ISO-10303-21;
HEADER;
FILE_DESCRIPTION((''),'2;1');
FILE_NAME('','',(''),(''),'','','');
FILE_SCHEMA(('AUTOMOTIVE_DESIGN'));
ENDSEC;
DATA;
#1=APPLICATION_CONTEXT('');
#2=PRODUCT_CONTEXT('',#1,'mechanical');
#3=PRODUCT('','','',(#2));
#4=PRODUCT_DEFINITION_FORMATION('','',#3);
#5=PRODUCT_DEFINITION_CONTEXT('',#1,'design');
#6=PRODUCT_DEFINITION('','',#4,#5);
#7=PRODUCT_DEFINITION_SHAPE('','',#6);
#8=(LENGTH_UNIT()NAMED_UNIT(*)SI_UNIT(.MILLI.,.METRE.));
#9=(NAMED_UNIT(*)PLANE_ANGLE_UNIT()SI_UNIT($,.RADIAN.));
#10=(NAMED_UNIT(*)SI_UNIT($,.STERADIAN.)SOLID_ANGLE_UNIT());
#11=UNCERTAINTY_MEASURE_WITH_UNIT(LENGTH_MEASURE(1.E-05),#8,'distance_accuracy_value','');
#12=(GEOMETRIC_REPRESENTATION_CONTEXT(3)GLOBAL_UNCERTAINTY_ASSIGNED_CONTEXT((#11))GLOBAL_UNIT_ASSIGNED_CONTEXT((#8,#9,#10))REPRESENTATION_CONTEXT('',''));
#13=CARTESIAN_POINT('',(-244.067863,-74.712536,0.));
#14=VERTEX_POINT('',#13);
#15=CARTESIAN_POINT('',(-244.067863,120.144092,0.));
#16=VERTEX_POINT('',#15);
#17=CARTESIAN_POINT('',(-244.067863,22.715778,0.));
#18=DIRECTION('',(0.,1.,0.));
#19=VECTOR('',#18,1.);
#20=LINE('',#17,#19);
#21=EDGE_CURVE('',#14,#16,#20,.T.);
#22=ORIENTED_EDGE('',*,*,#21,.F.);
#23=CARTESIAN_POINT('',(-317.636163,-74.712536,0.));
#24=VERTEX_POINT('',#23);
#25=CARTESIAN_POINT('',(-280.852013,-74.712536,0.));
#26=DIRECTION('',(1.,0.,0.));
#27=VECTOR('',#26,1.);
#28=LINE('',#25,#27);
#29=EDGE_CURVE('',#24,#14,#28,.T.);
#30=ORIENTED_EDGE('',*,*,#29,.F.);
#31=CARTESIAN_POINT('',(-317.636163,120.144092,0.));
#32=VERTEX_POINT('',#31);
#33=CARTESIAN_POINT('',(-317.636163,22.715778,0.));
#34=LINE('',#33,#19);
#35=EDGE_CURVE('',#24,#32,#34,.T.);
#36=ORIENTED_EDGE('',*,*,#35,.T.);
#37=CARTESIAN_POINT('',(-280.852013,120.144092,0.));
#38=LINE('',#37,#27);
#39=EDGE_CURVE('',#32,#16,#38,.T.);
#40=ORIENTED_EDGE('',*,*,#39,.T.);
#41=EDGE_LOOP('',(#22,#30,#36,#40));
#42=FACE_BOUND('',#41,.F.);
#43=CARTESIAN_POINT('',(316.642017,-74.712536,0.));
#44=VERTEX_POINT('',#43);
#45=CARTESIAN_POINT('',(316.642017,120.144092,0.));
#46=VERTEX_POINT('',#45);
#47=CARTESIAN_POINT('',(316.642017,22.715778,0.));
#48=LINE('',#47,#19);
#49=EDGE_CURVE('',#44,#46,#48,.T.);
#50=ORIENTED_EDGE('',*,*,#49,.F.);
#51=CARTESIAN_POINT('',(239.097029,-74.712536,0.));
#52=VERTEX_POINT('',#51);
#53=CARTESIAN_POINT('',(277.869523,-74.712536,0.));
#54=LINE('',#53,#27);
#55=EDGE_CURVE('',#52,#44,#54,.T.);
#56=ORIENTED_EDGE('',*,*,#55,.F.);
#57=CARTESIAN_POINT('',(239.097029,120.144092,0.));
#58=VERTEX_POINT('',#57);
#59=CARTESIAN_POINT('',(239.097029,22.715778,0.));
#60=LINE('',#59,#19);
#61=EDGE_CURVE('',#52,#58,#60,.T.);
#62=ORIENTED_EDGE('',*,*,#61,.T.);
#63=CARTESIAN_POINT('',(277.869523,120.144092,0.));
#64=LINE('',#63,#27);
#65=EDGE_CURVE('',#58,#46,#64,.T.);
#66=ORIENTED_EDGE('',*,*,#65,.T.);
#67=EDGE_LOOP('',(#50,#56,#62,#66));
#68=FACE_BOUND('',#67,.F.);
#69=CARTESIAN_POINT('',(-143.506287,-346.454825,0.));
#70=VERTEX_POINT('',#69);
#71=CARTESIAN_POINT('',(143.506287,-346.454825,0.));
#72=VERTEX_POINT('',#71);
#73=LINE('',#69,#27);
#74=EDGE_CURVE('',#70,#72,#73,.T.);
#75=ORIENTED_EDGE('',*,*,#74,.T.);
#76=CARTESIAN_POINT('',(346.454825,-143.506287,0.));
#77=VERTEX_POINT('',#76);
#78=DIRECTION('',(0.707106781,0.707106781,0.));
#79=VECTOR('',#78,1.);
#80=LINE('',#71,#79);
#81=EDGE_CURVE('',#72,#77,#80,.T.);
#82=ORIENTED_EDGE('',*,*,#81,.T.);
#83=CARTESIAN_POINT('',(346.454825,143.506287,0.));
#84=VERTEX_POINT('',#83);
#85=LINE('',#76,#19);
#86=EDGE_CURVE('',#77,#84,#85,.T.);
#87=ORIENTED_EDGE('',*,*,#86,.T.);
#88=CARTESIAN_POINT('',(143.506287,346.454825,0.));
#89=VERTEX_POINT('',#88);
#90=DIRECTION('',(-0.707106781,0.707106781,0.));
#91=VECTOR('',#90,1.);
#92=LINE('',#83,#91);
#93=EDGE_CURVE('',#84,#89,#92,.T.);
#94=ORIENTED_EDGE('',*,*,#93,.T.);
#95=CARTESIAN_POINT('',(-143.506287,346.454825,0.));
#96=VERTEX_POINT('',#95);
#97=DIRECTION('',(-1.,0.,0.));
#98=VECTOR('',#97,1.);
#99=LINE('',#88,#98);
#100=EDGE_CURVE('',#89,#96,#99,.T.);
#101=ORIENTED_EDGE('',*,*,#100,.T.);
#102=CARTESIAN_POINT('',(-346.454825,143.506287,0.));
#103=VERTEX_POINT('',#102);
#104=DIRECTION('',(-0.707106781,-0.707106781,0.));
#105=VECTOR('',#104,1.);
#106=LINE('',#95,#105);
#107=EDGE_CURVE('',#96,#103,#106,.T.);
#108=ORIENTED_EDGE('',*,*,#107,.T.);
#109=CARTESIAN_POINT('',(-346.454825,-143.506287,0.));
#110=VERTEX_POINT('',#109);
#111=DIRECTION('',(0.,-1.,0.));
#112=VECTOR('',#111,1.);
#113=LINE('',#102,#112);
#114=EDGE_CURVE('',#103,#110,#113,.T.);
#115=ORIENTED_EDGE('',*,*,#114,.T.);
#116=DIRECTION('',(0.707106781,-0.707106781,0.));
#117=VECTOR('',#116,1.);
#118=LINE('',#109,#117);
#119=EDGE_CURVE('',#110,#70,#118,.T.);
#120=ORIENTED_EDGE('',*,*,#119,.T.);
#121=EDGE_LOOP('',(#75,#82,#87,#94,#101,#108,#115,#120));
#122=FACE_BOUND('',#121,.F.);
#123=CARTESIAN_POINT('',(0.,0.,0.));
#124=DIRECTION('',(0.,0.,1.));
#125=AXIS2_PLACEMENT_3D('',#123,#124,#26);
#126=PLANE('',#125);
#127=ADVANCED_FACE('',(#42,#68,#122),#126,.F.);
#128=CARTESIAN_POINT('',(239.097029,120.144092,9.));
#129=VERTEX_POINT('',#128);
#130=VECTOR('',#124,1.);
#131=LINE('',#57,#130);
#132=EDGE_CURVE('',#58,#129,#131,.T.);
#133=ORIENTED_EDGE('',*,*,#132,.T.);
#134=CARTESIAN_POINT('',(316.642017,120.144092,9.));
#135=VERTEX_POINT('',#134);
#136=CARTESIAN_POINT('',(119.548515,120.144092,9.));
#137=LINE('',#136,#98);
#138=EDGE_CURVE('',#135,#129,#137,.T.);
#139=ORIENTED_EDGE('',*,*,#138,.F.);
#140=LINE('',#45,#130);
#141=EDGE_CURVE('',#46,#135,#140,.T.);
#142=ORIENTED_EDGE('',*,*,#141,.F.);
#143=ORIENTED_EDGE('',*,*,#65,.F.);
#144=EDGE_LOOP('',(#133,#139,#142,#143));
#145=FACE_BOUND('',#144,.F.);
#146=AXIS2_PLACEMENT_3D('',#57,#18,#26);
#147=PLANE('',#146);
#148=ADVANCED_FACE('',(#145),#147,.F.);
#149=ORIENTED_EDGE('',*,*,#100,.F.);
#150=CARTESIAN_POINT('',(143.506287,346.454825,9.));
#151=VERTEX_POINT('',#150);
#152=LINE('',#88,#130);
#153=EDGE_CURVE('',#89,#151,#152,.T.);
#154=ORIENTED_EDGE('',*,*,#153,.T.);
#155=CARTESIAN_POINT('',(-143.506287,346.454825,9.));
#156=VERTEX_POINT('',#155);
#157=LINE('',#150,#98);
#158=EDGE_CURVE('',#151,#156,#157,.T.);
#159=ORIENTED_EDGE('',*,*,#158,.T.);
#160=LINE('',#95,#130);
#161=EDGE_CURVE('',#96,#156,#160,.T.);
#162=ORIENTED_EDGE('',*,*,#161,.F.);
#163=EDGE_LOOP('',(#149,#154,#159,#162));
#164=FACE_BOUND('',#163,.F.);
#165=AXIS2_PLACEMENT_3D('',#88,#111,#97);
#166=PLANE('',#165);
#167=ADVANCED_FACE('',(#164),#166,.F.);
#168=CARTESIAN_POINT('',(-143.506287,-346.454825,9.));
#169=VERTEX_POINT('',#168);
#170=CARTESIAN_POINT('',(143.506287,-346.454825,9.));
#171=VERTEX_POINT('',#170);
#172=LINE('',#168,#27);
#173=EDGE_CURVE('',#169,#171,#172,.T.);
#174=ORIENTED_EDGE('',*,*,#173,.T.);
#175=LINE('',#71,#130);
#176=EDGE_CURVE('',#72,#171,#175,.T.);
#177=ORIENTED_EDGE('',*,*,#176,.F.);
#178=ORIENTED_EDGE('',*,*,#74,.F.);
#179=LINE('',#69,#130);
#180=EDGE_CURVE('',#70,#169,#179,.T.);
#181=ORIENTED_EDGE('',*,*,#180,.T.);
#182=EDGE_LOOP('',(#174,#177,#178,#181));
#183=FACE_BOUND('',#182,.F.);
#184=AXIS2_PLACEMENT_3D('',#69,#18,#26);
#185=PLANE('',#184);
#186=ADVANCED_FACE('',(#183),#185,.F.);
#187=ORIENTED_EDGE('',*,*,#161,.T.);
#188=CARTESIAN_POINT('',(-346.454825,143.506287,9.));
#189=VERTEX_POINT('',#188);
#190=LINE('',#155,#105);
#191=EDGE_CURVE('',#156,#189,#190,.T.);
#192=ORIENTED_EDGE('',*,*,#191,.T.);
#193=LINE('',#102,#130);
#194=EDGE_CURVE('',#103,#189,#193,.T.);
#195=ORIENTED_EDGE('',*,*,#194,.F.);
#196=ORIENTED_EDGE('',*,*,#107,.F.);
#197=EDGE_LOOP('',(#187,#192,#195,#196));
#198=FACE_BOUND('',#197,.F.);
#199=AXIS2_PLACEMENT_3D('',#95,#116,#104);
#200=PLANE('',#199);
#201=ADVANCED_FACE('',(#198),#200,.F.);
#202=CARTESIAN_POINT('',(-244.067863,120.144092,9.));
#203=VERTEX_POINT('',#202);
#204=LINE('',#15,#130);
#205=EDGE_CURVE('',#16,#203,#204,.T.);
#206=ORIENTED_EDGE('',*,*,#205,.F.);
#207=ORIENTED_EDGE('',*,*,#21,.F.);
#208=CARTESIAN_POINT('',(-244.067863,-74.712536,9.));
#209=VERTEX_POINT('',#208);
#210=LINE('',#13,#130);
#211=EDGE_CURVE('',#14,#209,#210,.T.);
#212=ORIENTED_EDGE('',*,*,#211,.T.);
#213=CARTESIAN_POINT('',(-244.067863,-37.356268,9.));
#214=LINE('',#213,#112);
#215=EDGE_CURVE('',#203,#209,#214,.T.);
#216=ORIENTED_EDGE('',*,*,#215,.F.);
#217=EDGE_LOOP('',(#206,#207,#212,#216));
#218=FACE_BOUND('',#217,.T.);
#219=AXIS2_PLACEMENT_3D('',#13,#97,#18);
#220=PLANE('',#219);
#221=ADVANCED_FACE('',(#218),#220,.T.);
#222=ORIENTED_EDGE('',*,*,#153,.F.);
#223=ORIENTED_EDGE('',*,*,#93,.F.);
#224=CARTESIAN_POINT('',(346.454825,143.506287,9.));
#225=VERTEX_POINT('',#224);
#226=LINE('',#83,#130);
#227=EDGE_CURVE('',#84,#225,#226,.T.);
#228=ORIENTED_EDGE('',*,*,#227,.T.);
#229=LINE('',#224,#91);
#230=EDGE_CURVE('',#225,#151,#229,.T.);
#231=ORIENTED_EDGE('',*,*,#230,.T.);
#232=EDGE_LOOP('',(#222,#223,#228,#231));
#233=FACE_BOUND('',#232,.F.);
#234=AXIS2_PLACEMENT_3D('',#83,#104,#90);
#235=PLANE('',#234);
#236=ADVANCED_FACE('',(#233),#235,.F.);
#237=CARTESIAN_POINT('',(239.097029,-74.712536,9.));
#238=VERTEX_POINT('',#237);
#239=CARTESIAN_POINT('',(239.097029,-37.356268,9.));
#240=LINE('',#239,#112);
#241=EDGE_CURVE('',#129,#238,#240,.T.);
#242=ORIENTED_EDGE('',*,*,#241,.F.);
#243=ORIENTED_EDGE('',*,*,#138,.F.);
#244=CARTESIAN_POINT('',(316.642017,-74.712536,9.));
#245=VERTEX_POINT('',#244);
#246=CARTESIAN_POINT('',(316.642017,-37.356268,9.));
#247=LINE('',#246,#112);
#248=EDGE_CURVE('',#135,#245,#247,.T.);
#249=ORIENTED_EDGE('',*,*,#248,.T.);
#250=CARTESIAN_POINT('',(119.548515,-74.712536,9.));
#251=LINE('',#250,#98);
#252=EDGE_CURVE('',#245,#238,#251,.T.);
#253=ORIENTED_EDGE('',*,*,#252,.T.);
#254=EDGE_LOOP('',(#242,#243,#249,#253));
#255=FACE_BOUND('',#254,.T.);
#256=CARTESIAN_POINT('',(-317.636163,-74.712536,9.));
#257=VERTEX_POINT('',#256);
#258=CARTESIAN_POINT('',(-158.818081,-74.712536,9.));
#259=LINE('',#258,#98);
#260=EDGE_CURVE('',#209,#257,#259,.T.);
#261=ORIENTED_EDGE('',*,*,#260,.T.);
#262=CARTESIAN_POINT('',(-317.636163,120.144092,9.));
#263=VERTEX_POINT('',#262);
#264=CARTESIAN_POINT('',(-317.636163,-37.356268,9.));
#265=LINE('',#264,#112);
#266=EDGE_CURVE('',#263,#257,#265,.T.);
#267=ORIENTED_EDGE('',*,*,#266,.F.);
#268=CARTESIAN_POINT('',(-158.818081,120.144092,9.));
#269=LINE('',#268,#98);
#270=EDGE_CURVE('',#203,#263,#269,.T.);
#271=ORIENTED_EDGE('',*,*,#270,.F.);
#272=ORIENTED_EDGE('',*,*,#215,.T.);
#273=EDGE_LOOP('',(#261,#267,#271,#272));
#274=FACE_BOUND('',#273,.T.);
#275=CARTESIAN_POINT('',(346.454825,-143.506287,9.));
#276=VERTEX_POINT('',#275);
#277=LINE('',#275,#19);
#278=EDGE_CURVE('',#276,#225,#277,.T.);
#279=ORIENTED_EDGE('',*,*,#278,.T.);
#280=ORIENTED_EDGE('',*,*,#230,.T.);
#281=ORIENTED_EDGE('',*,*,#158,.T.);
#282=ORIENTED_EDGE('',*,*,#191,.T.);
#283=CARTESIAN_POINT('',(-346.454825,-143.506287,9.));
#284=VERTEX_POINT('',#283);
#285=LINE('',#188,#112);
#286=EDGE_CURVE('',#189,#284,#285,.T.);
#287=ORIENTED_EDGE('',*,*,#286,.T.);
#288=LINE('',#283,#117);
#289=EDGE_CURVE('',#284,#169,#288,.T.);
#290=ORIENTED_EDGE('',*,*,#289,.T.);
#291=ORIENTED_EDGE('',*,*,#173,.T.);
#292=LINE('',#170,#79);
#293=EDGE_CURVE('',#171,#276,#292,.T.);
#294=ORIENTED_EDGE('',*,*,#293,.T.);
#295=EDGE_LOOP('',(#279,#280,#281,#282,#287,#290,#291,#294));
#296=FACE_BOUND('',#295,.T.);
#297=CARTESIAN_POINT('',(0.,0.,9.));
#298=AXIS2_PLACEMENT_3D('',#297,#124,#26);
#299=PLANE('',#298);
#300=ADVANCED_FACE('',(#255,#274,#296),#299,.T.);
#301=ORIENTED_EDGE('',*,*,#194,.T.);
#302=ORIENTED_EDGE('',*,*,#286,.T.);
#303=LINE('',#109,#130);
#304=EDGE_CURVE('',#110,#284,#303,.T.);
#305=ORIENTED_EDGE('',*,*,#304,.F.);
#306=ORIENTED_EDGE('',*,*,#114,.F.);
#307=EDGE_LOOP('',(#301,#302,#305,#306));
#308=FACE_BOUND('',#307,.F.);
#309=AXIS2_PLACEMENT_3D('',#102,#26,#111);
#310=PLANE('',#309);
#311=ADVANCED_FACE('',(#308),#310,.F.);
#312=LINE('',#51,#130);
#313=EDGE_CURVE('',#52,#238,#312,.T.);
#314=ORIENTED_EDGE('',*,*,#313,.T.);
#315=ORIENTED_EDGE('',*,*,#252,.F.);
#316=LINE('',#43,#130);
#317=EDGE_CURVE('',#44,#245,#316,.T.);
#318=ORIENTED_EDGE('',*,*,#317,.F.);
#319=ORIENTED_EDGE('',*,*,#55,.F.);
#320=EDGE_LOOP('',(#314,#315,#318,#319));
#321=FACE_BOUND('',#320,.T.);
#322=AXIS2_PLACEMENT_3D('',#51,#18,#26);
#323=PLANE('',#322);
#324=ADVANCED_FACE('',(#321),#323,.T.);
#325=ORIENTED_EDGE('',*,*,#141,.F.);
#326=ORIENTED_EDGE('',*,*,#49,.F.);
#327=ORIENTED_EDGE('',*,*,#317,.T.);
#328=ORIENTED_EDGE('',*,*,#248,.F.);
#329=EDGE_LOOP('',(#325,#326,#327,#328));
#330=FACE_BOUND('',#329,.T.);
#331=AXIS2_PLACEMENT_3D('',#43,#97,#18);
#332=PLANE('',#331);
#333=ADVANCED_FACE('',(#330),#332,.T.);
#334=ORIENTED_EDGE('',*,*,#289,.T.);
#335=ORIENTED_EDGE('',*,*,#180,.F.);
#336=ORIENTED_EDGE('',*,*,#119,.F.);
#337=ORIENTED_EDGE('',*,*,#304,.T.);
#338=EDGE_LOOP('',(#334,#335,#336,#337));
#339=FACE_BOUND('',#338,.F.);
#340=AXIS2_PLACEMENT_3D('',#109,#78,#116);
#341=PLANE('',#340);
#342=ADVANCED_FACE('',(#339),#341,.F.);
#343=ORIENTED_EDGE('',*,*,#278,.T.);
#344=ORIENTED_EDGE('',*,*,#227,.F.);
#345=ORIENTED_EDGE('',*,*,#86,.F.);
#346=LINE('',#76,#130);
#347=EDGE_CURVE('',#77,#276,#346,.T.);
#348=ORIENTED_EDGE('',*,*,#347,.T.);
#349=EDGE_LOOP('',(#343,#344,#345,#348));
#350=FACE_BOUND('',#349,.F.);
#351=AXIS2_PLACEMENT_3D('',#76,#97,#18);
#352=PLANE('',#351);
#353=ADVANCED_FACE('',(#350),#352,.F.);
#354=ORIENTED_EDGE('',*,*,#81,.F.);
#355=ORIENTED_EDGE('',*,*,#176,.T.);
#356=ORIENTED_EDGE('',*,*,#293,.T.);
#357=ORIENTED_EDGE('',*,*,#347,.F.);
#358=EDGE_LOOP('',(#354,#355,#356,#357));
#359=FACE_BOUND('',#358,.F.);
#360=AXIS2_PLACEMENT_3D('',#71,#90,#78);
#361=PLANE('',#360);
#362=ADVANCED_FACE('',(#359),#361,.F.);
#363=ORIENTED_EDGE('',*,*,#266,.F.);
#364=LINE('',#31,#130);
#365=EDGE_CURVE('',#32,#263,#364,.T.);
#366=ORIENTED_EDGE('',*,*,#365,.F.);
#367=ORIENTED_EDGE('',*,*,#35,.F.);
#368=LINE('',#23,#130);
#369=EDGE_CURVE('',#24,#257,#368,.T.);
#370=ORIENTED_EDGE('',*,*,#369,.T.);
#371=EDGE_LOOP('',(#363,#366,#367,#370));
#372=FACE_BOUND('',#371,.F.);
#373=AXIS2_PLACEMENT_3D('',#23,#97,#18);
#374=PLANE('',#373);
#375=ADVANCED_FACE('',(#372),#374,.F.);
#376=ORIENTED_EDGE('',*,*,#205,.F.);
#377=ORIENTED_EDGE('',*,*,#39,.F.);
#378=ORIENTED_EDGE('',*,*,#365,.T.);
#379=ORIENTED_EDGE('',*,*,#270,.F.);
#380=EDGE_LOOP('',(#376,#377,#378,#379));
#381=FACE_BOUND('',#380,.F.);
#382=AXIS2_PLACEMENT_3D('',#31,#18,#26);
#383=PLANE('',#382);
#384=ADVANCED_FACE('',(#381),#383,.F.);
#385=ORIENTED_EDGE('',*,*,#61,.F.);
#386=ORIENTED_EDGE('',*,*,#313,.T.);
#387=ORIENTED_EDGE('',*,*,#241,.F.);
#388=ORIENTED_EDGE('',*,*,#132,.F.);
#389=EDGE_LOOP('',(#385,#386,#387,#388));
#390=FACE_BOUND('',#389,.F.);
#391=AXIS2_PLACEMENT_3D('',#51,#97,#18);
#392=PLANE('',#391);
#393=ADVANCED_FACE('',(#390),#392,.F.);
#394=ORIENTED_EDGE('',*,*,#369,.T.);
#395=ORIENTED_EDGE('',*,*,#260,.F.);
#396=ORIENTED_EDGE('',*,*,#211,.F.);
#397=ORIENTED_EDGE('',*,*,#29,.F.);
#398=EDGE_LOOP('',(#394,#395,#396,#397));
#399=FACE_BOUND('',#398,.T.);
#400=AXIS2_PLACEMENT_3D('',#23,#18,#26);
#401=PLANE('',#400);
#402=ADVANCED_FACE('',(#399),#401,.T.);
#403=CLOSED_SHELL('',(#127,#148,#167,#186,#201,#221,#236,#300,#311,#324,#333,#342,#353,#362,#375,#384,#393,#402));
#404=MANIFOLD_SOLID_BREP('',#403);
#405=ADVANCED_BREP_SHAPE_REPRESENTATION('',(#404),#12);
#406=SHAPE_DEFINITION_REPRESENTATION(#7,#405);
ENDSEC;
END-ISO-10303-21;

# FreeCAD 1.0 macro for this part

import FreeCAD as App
import Part
import Sketcher

doc = App.newDocument("Part")
body = doc.addObject("PartDesign::Body", "Body")

# Sketch on XY plane
sketch1 = body.newObject("Sketcher::SketchObject", "Sketch")
sketch1.AttachmentSupport = (doc.getObject("XY_Plane"), [""])
sketch1.MapMode = "FlatFace"
sketch1.addGeometry([
    Part.LineSegment(App.Vector(144, 346, 0), App.Vector(-144, 346, 0)),  # 0
    Part.LineSegment(App.Vector(-144, 346, 0), App.Vector(-346, 144, 0)),  # 1
    Part.LineSegment(App.Vector(-346, 144, 0), App.Vector(-346, -144, 0)),  # 2
    Part.LineSegment(App.Vector(-346, -144, 0), App.Vector(-144, -346, 0)),  # 3
    Part.LineSegment(App.Vector(-144, -346, 0), App.Vector(144, -346, 0)),  # 4
    Part.LineSegment(App.Vector(144, -346, 0), App.Vector(346, -144, 0)),  # 5
    Part.LineSegment(App.Vector(346, -144, 0), App.Vector(346, 144, 0)),  # 6
    Part.LineSegment(App.Vector(346, 144, 0), App.Vector(144, 346, 0)),  # 7
], False)
sketch1.addConstraint([
    Sketcher.Constraint("Coincident", 0, 2, 1, 1),
    Sketcher.Constraint("Coincident", 1, 2, 2, 1),
    Sketcher.Constraint("Coincident", 2, 2, 3, 1),
    Sketcher.Constraint("Coincident", 3, 2, 4, 1),
    Sketcher.Constraint("Coincident", 4, 2, 5, 1),
    Sketcher.Constraint("Coincident", 5, 2, 6, 1),
    Sketcher.Constraint("Coincident", 6, 2, 7, 1),
    Sketcher.Constraint("Coincident", 7, 2, 0, 1),
    Sketcher.Constraint("Horizontal", 0),
    Sketcher.Constraint("Vertical", 2),
    Sketcher.Constraint("Horizontal", 4),
    Sketcher.Constraint("Vertical", 6),
    Sketcher.Constraint("Symmetric", 0, 2, 4, 2, -1, 1),
    Sketcher.Constraint("Symmetric", 1, 2, 5, 2, -1, 1),
    Sketcher.Constraint("Perpendicular", 1, 3),
    Sketcher.Constraint("Perpendicular", 5, 7),
    Sketcher.Constraint("Horizontal", 2, 2, 5, 2),
    Sketcher.Constraint("Horizontal", 1, 2, 6, 2),
    Sketcher.Constraint("Vertical", 0, 2, 3, 2),
    Sketcher.Constraint("Equal", 4, 2),
    Sketcher.Constraint("DistanceX", 0, 2, 0, 1, 287.012574),
    Sketcher.Constraint("DistanceX", 1, 2, 0, 2, 202.948538),
])
pad1 = body.newObject("PartDesign::Pad", "Pad")
pad1.Profile = sketch1
pad1.Length = 9

# Sketch on XY plane
sketch2 = body.newObject("Sketcher::SketchObject", "Sketch001")
sketch2.AttachmentSupport = (doc.getObject("XY_Plane"), [""])
sketch2.MapMode = "FlatFace"
sketch2.addGeometry([
    Part.LineSegment(App.Vector(239, 120, 0), App.Vector(239, -75, 0)),
    Part.LineSegment(App.Vector(239, -75, 0), App.Vector(317, -75, 0)),
    Part.LineSegment(App.Vector(317, -75, 0), App.Vector(317, 120, 0)),
    Part.LineSegment(App.Vector(317, 120, 0), App.Vector(239, 120, 0)),
], False)
sketch2.addConstraint([
    Sketcher.Constraint("Coincident", 0, 2, 1, 1),
    Sketcher.Constraint("Coincident", 1, 2, 2, 1),
    Sketcher.Constraint("Coincident", 2, 2, 3, 1),
    Sketcher.Constraint("Coincident", 3, 2, 0, 1),
    Sketcher.Constraint("Vertical", 0),
    Sketcher.Constraint("Horizontal", 1),
    Sketcher.Constraint("Vertical", 2),
    Sketcher.Constraint("Horizontal", 3),
    Sketcher.Constraint("DistanceY", 0, 2, 0, 1, 194.856629),
    Sketcher.Constraint("DistanceX", 1, 1, 1, 2, 77.544987),
    Sketcher.Constraint("DistanceX", -1, 1, 0, 2, 239.097029),
    Sketcher.Constraint("DistanceY", 0, 2, -1, 1, 74.712536),
])
pocket1 = body.newObject("PartDesign::Pocket", "Pocket")
pocket1.Profile = sketch2
pocket1.Type = "ThroughAll"
pocket1.Reversed = True

# Sketch on XY plane
sketch3 = body.newObject("Sketcher::SketchObject", "Sketch002")
sketch3.AttachmentSupport = (doc.getObject("XY_Plane"), [""])
sketch3.MapMode = "FlatFace"
sketch3.addGeometry([
    Part.LineSegment(App.Vector(-318, 120, 0), App.Vector(-318, -75, 0)),
    Part.LineSegment(App.Vector(-318, -75, 0), App.Vector(-244, -75, 0)),
    Part.LineSegment(App.Vector(-244, -75, 0), App.Vector(-244, 120, 0)),
    Part.LineSegment(App.Vector(-244, 120, 0), App.Vector(-318, 120, 0)),
], False)
sketch3.addConstraint([
    Sketcher.Constraint("Coincident", 0, 2, 1, 1),
    Sketcher.Constraint("Coincident", 1, 2, 2, 1),
    Sketcher.Constraint("Coincident", 2, 2, 3, 1),
    Sketcher.Constraint("Coincident", 3, 2, 0, 1),
    Sketcher.Constraint("Vertical", 0),
    Sketcher.Constraint("Horizontal", 1),
    Sketcher.Constraint("Vertical", 2),
    Sketcher.Constraint("Horizontal", 3),
    Sketcher.Constraint("DistanceX", 1, 1, 1, 2, 73.568299),
    Sketcher.Constraint("DistanceY", 0, 2, 0, 1, 194.856629),
    Sketcher.Constraint("DistanceX", 0, 2, -1, 1, 317.636163),
    Sketcher.Constraint("DistanceY", 0, 2, -1, 1, 74.712536),
])
pocket2 = body.newObject("PartDesign::Pocket", "Pocket001")
pocket2.Profile = sketch3
pocket2.Type = "ThroughAll"
pocket2.Reversed = True

doc.recompute()
